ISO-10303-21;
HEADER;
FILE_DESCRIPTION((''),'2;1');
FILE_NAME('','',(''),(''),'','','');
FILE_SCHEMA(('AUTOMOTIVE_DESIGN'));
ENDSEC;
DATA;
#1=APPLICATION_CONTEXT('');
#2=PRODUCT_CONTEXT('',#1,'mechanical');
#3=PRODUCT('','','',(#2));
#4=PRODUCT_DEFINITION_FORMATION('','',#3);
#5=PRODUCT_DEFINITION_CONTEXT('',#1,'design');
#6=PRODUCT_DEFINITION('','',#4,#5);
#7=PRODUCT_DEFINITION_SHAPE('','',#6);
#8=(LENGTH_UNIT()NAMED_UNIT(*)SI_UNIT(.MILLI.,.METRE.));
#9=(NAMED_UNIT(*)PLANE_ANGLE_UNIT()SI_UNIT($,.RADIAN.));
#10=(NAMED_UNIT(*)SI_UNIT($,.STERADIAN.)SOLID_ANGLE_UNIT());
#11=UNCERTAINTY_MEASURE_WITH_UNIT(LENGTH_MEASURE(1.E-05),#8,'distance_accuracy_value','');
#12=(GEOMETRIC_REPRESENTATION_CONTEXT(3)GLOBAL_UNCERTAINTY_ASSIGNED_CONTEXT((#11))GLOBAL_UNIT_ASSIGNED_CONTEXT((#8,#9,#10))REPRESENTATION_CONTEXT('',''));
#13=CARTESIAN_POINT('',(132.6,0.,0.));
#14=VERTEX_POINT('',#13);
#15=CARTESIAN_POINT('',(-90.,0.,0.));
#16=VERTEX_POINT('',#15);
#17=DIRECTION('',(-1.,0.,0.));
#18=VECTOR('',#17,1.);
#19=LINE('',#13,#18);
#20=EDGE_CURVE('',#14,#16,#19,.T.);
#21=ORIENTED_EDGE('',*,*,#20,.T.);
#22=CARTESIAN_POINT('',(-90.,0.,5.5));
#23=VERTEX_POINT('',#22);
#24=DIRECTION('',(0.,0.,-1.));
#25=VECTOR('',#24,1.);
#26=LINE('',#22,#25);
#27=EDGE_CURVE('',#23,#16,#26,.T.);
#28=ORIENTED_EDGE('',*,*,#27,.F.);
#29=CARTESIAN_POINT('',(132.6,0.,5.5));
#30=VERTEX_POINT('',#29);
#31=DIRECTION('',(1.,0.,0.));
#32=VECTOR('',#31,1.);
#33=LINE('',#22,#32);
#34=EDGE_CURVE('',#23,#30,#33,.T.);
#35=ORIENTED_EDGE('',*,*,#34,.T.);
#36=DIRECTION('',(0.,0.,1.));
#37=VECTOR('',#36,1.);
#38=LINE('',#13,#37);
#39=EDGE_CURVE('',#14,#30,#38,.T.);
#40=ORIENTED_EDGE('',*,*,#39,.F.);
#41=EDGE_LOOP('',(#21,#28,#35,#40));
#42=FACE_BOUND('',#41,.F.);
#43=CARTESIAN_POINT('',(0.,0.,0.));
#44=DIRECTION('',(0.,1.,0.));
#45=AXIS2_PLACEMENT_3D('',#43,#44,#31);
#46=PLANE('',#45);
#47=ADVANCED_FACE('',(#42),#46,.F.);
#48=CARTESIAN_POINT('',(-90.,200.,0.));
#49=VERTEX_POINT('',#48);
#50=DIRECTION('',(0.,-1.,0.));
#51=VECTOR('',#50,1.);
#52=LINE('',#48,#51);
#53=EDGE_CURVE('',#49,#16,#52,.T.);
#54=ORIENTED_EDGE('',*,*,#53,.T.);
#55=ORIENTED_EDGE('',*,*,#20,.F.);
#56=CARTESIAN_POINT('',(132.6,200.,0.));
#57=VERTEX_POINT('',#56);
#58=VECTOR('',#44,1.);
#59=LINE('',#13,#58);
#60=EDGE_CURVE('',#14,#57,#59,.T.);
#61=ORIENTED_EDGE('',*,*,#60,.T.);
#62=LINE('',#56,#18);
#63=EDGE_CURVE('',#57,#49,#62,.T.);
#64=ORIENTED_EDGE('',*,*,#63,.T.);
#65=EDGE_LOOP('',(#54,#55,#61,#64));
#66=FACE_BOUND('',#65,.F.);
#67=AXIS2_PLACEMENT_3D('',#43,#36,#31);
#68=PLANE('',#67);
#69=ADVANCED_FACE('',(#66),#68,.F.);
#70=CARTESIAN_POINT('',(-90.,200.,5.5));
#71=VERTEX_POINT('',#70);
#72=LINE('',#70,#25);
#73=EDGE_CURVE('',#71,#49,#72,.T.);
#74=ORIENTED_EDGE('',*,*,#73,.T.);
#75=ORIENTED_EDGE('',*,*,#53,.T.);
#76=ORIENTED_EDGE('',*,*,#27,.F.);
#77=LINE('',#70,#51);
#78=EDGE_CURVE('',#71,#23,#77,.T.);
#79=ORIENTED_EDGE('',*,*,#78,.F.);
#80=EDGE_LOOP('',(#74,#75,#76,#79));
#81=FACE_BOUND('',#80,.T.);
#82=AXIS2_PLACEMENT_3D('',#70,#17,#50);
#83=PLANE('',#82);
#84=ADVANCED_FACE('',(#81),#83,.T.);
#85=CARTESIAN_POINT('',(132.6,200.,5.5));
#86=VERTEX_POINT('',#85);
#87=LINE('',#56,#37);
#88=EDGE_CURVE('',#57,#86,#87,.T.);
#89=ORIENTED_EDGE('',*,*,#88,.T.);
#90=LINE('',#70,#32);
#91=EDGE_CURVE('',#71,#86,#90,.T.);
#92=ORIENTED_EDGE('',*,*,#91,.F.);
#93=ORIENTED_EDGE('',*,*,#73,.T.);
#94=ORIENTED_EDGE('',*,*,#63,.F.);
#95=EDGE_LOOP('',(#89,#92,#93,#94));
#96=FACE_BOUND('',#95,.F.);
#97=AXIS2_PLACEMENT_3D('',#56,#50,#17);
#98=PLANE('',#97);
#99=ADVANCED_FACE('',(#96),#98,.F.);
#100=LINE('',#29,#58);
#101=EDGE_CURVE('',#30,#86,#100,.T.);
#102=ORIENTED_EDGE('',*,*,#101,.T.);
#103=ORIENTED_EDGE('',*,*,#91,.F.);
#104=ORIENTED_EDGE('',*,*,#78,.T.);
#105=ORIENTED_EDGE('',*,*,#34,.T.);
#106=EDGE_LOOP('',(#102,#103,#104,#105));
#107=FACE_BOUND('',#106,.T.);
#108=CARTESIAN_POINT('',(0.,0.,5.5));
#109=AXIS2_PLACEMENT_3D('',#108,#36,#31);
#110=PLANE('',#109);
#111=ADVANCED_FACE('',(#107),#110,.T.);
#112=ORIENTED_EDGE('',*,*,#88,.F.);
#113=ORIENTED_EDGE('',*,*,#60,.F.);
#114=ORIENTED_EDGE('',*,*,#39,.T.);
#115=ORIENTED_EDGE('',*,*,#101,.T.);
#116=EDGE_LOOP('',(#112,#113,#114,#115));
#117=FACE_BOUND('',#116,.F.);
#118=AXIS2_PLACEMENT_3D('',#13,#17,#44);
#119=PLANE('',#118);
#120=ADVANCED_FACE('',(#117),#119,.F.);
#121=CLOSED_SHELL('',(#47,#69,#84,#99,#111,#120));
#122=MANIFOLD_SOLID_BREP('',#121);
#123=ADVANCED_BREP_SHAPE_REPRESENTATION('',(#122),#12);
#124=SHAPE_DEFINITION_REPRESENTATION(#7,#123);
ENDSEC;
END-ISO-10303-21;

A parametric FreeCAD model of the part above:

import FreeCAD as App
import Part
import Sketcher
from FreeCAD import Vector

doc = App.newDocument("Part")
params = doc.addObject("Spreadsheet::Sheet", "Params")
for row, (alias, value) in enumerate([
    ("sketch1_height", "200 mm"),
    ("sketch1_width", "132.6 mm"),
    ("pad1_length", "5.5 mm"),
    ("sketch2_width", "90 mm"),
    ("sketch2_height", "200 mm"),
    ("pad2_length", "5.5 mm"),
], start=1):
    params.set(f"A{row}", alias)
    params.set(f"B{row}", "=" + value)
    params.setAlias(f"B{row}", alias)

body = doc.addObject("PartDesign::Body", "Body")

# Sketch on XY plane
sketch1 = body.newObject("Sketcher::SketchObject", "Sketch")
sketch1.AttachmentSupport = (doc.getObject("XY_Plane"), [""])
sketch1.MapMode = "FlatFace"
sketch1.addGeometry([
    Part.LineSegment(Vector(0, 200, 0), Vector(0, 0, 0)),
    Part.LineSegment(Vector(0, 0, 0), Vector(132.6, 0, 0)),
    Part.LineSegment(Vector(132.6, 0, 0), Vector(132.6, 200, 0)),
    Part.LineSegment(Vector(132.6, 200, 0), Vector(0, 200, 0)),
], False)
sketch1.addConstraint([
    Sketcher.Constraint("Coincident", 0, 2, 1, 1),
    Sketcher.Constraint("Coincident", 1, 2, 2, 1),
    Sketcher.Constraint("Coincident", 2, 2, 3, 1),
    Sketcher.Constraint("Coincident", 3, 2, 0, 1),
    Sketcher.Constraint("Vertical", 0),
    Sketcher.Constraint("Horizontal", 1),
    Sketcher.Constraint("Vertical", 2),
    Sketcher.Constraint("Horizontal", 3),
    Sketcher.Constraint("Coincident", 0, 2, -1, 1),
    Sketcher.Constraint("DistanceY", 0, 2, 0, 1, 200.0),
    Sketcher.Constraint("DistanceX", 1, 1, 1, 2, 132.6),
])
sketch1.setExpression("Constraints[9]", "Params.sketch1_height")
sketch1.setExpression("Constraints[10]", "Params.sketch1_width")
pad1 = body.newObject("PartDesign::Pad", "Pad")
pad1.Profile = sketch1
pad1.setExpression("Length", "Params.pad1_length")

# Sketch on XY plane
sketch2 = body.newObject("Sketcher::SketchObject", "Sketch001")
sketch2.AttachmentSupport = (doc.getObject("XY_Plane"), [""])
sketch2.MapMode = "FlatFace"
sketch2.AttachmentOffset = App.Placement(Vector(0, 0, 5.5), App.Rotation())
sketch2.addGeometry([
    Part.LineSegment(Vector(0, 0, 0), Vector(0, 200, 0)),
    Part.LineSegment(Vector(0, 200, 0), Vector(-90, 200, 0)),
    Part.LineSegment(Vector(-90, 200, 0), Vector(-90, 0, 0)),
    Part.LineSegment(Vector(-90, 0, 0), Vector(0, 0, 0)),
], False)
sketch2.addConstraint([
    Sketcher.Constraint("Coincident", 0, 2, 1, 1),
    Sketcher.Constraint("Coincident", 1, 2, 2, 1),
    Sketcher.Constraint("Coincident", 2, 2, 3, 1),
    Sketcher.Constraint("Coincident", 3, 2, 0, 1),
    Sketcher.Constraint("Vertical", 0),
    Sketcher.Constraint("Horizontal", 1),
    Sketcher.Constraint("Vertical", 2),
    Sketcher.Constraint("Horizontal", 3),
    Sketcher.Constraint("Coincident", 3, 2, -1, 1),
    Sketcher.Constraint("DistanceX", 1, 2, 1, 1, 90.0),
    Sketcher.Constraint("DistanceY", 0, 1, 0, 2, 200.0),
])
sketch2.setExpression("Constraints[9]", "Params.sketch2_width")
sketch2.setExpression("Constraints[10]", "Params.sketch2_height")
pad2 = body.newObject("PartDesign::Pad", "Pad001")
pad2.Profile = sketch2
pad2.setExpression("Length", "Params.pad2_length")
pad2.Reversed = True

doc.recompute()
